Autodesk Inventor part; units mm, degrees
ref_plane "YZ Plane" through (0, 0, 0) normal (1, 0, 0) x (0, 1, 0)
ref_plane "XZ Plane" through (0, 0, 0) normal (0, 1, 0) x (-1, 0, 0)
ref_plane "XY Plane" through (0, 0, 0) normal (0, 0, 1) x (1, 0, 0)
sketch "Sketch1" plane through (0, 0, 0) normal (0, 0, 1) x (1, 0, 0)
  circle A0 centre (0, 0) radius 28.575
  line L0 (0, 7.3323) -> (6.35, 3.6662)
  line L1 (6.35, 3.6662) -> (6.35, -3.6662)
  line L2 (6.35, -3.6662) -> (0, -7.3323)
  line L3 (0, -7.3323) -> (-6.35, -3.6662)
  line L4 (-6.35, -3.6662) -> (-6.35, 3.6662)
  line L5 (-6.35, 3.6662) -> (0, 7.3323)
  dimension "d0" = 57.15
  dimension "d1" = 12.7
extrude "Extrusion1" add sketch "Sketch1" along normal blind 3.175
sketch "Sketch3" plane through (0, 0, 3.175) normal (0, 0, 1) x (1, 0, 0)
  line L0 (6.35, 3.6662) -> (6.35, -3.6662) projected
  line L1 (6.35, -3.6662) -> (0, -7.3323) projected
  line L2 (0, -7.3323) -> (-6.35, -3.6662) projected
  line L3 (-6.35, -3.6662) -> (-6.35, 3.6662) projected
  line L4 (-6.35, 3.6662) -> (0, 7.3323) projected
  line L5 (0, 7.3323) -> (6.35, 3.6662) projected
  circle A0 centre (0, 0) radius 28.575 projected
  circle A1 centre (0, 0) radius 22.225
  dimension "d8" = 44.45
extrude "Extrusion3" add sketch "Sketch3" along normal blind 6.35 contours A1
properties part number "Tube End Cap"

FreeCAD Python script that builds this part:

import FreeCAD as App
import Part
import Sketcher

V = App.Vector
Q = App.Units.Quantity


def add_polygon(sketch, points):
    """Adds a closed chain of lines whose ends are joined by coincident constraints."""
    first, n = sketch.GeometryCount, len(points)
    for a, b in zip(points, points[1:] + points[:1]):
        sketch.addGeometry(Part.LineSegment(App.Vector(*a, 0), App.Vector(*b, 0)), False)
    for i in range(n):
        sketch.addConstraint(Sketcher.Constraint("Coincident", first + i, 2, first + (i + 1) % n, 1))

doc = App.newDocument("Part")
body = doc.addObject("PartDesign::Body", "Body")

# Sketch on XY plane
sketch1 = body.newObject("Sketcher::SketchObject", "Sketch")
sketch1.AttachmentSupport = (doc.getObject("XY_Plane"), [""])
sketch1.MapMode = "FlatFace"
sketch1.addGeometry(Part.Circle(V(0, 0, 0), V(0, 0, 1), 28.575), False)  # 0
add_polygon(sketch1, [(-6.35, 3.6662), (0, 7.3323), (6.35, 3.6662), (6.35, -3.6662), (0, -7.3323), (-6.35, -3.6662)])  # lines 1-6
sketch1.addConstraint([
    Sketcher.Constraint("Vertical", 3),
    Sketcher.Constraint("Vertical", 6),
    Sketcher.Constraint("Coincident", 0, 3, -1, 1),
    Sketcher.Constraint("Symmetric", 1, 2, 4, 2, -1, 1),
    Sketcher.Constraint("Symmetric", 2, 2, 5, 2, -1, 1),
    Sketcher.Constraint("PointOnObject", 1, 2, -2),
    Sketcher.Constraint("Parallel", 1, 4),
    Sketcher.Constraint("Horizontal", 3, 2, 5, 2),
    Sketcher.Constraint("Diameter", 0, Q("2.25 in")),
    Sketcher.Constraint("DistanceX", 5, 2, 3, 2, Q("0.5 in")),
    Sketcher.Constraint("Angle", 1, Q("29.9995 deg")),
    Sketcher.Constraint("DistanceY", 3, 2, 1, 2, Q("0.433 in")),
])
pad1 = body.newObject("PartDesign::Pad", "Pad")
pad1.Profile = sketch1
pad1.Length = Q("0.125 in")

# Sketch on XY plane
sketch2 = body.newObject("Sketcher::SketchObject", "Sketch001")
sketch2.AttachmentSupport = (doc.getObject("XY_Plane"), [""])
sketch2.MapMode = "FlatFace"
sketch2.AttachmentOffset = App.Placement(V(0, 0, 0.125 * 25.4), App.Rotation())
sketch2.addGeometry(Part.Circle(V(0, 0, 0), V(0, 0, 1), 22.225), False)  # 0
add_polygon(sketch2, [(0, 7.3323), (6.35, 3.6662), (6.35, -3.6662), (0, -7.3323), (-6.35, -3.6662), (-6.35, 3.6662)])  # lines 1-6
sketch2.addConstraint([
    Sketcher.Constraint("Vertical", 2),
    Sketcher.Constraint("Vertical", 5),
    Sketcher.Constraint("Coincident", 0, 3, -1, 1),
    Sketcher.Constraint("Symmetric", 1, 2, 4, 2, -1, 1),
    Sketcher.Constraint("Symmetric", 3, 2, 6, 2, -1, 1),
    Sketcher.Constraint("PointOnObject", 3, 2, -2),
    Sketcher.Constraint("Parallel", 3, 6),
    Sketcher.Constraint("Horizontal", 2, 2, 4, 2),
    Sketcher.Constraint("Diameter", 0, Q("1.75 in")),
    Sketcher.Constraint("Angle", 1, Q("-29.9995 deg")),
    Sketcher.Constraint("DistanceX", 4, 2, 2, 2, Q("0.5 in")),
    Sketcher.Constraint("DistanceY", 3, 2, 1, 2, Q("0.433 in")),
])
pad2 = body.newObject("PartDesign::Pad", "Pad001")
pad2.Profile = sketch2
pad2.Length = Q("0.25 in")

doc.recompute()
